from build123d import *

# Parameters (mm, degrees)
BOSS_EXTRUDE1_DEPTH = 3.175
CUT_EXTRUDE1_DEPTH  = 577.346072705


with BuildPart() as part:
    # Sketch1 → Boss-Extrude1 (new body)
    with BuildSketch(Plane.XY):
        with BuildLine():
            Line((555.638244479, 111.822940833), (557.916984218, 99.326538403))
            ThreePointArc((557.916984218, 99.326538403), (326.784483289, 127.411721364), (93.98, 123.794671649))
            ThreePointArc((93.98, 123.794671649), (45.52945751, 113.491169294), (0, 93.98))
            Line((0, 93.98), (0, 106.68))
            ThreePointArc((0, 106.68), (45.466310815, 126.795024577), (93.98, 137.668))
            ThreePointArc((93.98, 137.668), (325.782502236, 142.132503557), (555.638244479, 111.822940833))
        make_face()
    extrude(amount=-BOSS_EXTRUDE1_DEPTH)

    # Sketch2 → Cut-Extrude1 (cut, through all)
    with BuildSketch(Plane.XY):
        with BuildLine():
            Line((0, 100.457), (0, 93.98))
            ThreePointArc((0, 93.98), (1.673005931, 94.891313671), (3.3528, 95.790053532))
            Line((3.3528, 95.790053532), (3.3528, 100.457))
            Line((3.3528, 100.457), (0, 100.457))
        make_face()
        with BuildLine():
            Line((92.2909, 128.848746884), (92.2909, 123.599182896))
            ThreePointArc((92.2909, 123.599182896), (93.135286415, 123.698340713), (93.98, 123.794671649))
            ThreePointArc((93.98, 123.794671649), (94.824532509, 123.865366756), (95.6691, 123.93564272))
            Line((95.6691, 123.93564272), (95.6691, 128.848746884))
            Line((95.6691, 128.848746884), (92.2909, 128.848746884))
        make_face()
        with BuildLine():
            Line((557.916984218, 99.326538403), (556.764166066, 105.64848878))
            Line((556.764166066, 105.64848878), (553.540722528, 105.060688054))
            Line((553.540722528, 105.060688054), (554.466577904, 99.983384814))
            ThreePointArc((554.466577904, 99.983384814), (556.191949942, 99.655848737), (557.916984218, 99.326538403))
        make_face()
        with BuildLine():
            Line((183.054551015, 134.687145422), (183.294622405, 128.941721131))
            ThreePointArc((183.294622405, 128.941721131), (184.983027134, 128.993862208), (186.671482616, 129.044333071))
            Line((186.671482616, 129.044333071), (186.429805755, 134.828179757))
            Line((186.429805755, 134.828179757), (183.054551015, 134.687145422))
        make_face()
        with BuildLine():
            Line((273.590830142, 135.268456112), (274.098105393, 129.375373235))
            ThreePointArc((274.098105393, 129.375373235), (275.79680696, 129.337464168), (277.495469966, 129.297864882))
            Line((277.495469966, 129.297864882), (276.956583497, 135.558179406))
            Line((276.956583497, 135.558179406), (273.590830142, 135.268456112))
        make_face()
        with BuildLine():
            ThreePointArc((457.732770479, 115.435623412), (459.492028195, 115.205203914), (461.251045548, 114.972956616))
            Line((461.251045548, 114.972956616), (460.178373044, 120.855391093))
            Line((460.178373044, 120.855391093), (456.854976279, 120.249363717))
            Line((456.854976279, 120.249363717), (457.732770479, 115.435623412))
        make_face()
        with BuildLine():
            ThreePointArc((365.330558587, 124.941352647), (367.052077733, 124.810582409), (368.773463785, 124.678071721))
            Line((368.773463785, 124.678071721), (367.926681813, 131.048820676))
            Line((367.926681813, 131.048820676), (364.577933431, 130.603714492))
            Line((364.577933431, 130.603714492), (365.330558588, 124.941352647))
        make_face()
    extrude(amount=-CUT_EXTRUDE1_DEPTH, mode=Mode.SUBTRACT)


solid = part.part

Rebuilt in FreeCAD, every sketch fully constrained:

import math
import FreeCAD as App
import Part
import Sketcher
from FreeCAD import Vector
Q = App.Units.Quantity

doc = App.newDocument("Part")
params = doc.addObject("Spreadsheet::Sheet", "Params")
for row, (alias, value) in enumerate([
    ("sketch1_radius", "10 in"),
    ("sketch1_height", "0.5 in"),
    ("pad1_length", "0.125 in"),
    ("sketch2_radius", "9.9999999 in"),
    ("sketch2_width", "0.132 in"),
    ("sketch2_width2", "0.133 in"),
    ("sketch2_height", "0.255 in"),
    ("sketch2_length", "0.253 in"),
], start=1):
    params.set(f"A{row}", alias)
    params.set(f"B{row}", "=" + value)
    params.setAlias(f"B{row}", alias)

body = doc.addObject("PartDesign::Body", "Body")

sketch1 = body.newObject("Sketcher::SketchObject", "Sketch")
sketch1.AttachmentSupport = (doc.getObject("XY_Plane"), [""])
sketch1.MapMode = "FlatFace"
sketch1.addGeometry(Part.LineSegment(Vector(557.916984, 99.326538, 0), Vector(555.638244, 111.822941, 0)), False)
sketch1.addGeometry(Part.ArcOfCircle(Part.Circle(Vector(239.516481, -1398.797227, 0), Vector(0, 0, 1), 1543.342561), math.radians(78.180494), math.radians(95.411005)), False)
sketch1.addGeometry(Part.ArcOfCircle(Part.Circle(Vector(125.005388, -114.430047, 0), Vector(0, 0, 1), 254), math.radians(97.01604), math.radians(119.481809)), False)
sketch1.addGeometry(Part.LineSegment(Vector(0, 106.68, 0), Vector(0, 93.98, 0)), False)
sketch1.addGeometry(Part.ArcOfCircle(Part.Circle(Vector(122.337167, -128.617434, 0), Vector(0, 0, 1), 254), math.radians(96.410001), math.radians(118.792724)), False)
sketch1.addGeometry(Part.ArcOfCircle(Part.Circle(Vector(236.848566, -1577.851115, 0), Vector(0, 0, 1), 1707.632809), math.radians(79.162768), math.radians(94.799244)), False)
sketch1.addConstraint(Sketcher.Constraint("Coincident", 0, 2, 1, 1))
sketch1.addConstraint(Sketcher.Constraint("Coincident", 1, 2, 2, 1))
sketch1.addConstraint(Sketcher.Constraint("Coincident", 2, 2, 3, 1))
sketch1.addConstraint(Sketcher.Constraint("Coincident", 3, 2, 4, 2))
sketch1.addConstraint(Sketcher.Constraint("Coincident", 4, 1, 5, 2))
sketch1.addConstraint(Sketcher.Constraint("Coincident", 5, 1, 0, 1))
sketch1.addConstraint(Sketcher.Constraint("Vertical", 3))
sketch1.addConstraint(Sketcher.Constraint("Equal", 2, 4))
sketch1.addConstraint(Sketcher.Constraint("PointOnObject", 2, 2, -2))
sketch1.addConstraint(Sketcher.Constraint("Vertical", 1, 2, 4, 1))
sketch1.addConstraint(Sketcher.Constraint("Radius", 2, Q("10 in")))
sketch1.addConstraint(Sketcher.Constraint("DistanceY", 3, 2, 3, 1, Q("0.5 in")))
sketch1.addConstraint(Sketcher.Constraint("DistanceX", -1, 1, 1, 2, Q("3.7 in")))
sketch1.addConstraint(Sketcher.Constraint("DistanceY", -1, 1, 2, 2, Q("4.2 in")))
sketch1.addConstraint(Sketcher.Constraint("DistanceY", -1, 1, 1, 2, Q("5.42 in")))
sketch1.addConstraint(Sketcher.Constraint("Radius", 1, 1543.342561))
sketch1.addConstraint(Sketcher.Constraint("Radius", 5, 1707.632809))
sketch1.addConstraint(Sketcher.Constraint("DistanceX", 4, 3, 5, 3, 114.511399))
sketch1.addConstraint(Sketcher.Constraint("Distance", 0, 12.702469))
sketch1.addConstraint(Sketcher.Constraint("DistanceX", -1, 1, 1, 3, 239.516481))
sketch1.addConstraint(Sketcher.Constraint("DistanceY", -1, 1, 0, 2, 111.822941))
sketch1.addConstraint(Sketcher.Constraint("DistanceY", -1, 1, 4, 1, 123.794672))
sketch1.setExpression("Constraints[10]", "Params.sketch1_radius")
sketch1.setExpression("Constraints[11]", "Params.sketch1_height")
pad1 = body.newObject("PartDesign::Pad", "Pad")
pad1.Profile = sketch1
pad1.setExpression("Length", "Params.pad1_length")
pad1.Reversed = True

sketch2 = body.newObject("Sketcher::SketchObject", "Sketch001")
sketch2.AttachmentSupport = (doc.getObject("XY_Plane"), [""])
sketch2.MapMode = "FlatFace"
sketch2.addGeometry(Part.LineSegment(Vector(0, 100.457, 0), Vector(0, 93.98, 0)), False)
sketch2.addGeometry(Part.ArcOfCircle(Part.Circle(Vector(122.337165, -128.617431, 0), Vector(0, 0, 1), 253.999996), math.radians(117.933236), math.radians(118.792724)), False)
sketch2.addGeometry(Part.LineSegment(Vector(3.3528, 95.790054, 0), Vector(3.3528, 100.457, 0)), False)
sketch2.addGeometry(Part.LineSegment(Vector(3.3528, 100.457, 0), Vector(0, 100.457, 0)), False)
sketch2.addGeometry(Part.LineSegment(Vector(92.2909, 128.848747, 0), Vector(92.2909, 123.599183, 0)), False)
sketch2.addGeometry(Part.ArcOfCircle(Part.Circle(Vector(122.337168, -128.617448, 0), Vector(0, 0, 1), 254.000015), math.radians(96.410001), math.radians(96.793562)), False)
sketch2.addGeometry(Part.ArcOfCircle(Part.Circle(Vector(236.848985, -1577.856141, 0), Vector(0, 0, 1), 1707.637852), math.radians(94.742373), math.radians(94.799244)), False)
sketch2.addGeometry(Part.LineSegment(Vector(95.6691, 123.935643, 0), Vector(95.6691, 128.848747, 0)), False)
sketch2.addGeometry(Part.LineSegment(Vector(95.6691, 128.848747, 0), Vector(92.2909, 128.848747, 0)), False)
sketch2.addGeometry(Part.LineSegment(Vector(557.916984, 99.326538, 0), Vector(556.764166, 105.648489, 0)), False)
sketch2.addGeometry(Part.LineSegment(Vector(556.764166, 105.648489, 0), Vector(553.540723, 105.060688, 0)), False)
sketch2.addGeometry(Part.LineSegment(Vector(553.540723, 105.060688, 0), Vector(554.466578, 99.983385, 0)), False)
sketch2.addGeometry(Part.ArcOfCircle(Part.Circle(Vector(236.848771, -1577.850037, 0), Vector(0, 0, 1), 1707.631712), math.radians(79.162768), math.radians(79.280618)), False)
sketch2.addGeometry(Part.LineSegment(Vector(183.054551, 134.687145, 0), Vector(183.294622, 128.941721, 0)), False)
sketch2.addGeometry(Part.ArcOfCircle(Part.Circle(Vector(236.848575, -1577.851422, 0), Vector(0, 0, 1), 1707.633116), math.radians(91.683822), math.radians(91.797177)), False)
sketch2.addGeometry(Part.LineSegment(Vector(186.671483, 129.044333, 0), Vector(186.429806, 134.82818, 0)), False)
sketch2.addGeometry(Part.LineSegment(Vector(186.429806, 134.82818, 0), Vector(183.054551, 134.687145, 0)), False)
sketch2.addGeometry(Part.LineSegment(Vector(273.59083, 135.268456, 0), Vector(274.098105, 129.375373, 0)), False)
sketch2.addGeometry(Part.ArcOfCircle(Part.Circle(Vector(236.84857, -1577.850911, 0), Vector(0, 0, 1), 1707.632605), math.radians(88.636056), math.radians(88.750076)), False)
sketch2.addGeometry(Part.LineSegment(Vector(277.49547, 129.297865, 0), Vector(276.956583, 135.558179, 0)), False)
sketch2.addGeometry(Part.LineSegment(Vector(276.956583, 135.558179, 0), Vector(273.59083, 135.268456, 0)), False)
sketch2.addGeometry(Part.ArcOfCircle(Part.Circle(Vector(236.848759, -1577.849645, 0), Vector(0, 0, 1), 1707.631326), math.radians(82.448839), math.radians(82.567903)), False)
sketch2.addGeometry(Part.LineSegment(Vector(461.251046, 114.972957, 0), Vector(460.178373, 120.855391, 0)), False)
sketch2.addGeometry(Part.LineSegment(Vector(460.178373, 120.855391, 0), Vector(456.854976, 120.249364, 0)), False)
sketch2.addGeometry(Part.LineSegment(Vector(456.854976, 120.249364, 0), Vector(457.73277, 115.435623, 0)), False)
sketch2.addGeometry(Part.ArcOfCircle(Part.Circle(Vector(236.848471, -1577.852352, 0), Vector(0, 0, 1), 1707.63405), math.radians(85.569142), math.radians(85.684998)), False)
sketch2.addGeometry(Part.LineSegment(Vector(368.773464, 124.678072, 0), Vector(367.926682, 131.048821, 0)), False)
sketch2.addGeometry(Part.LineSegment(Vector(367.926682, 131.048821, 0), Vector(364.577933, 130.603714, 0)), False)
sketch2.addGeometry(Part.LineSegment(Vector(364.577933, 130.603714, 0), Vector(365.330559, 124.941353, 0)), False)
sketch2.addConstraint(Sketcher.Constraint("Coincident", 0, 2, 1, 2))
sketch2.addConstraint(Sketcher.Constraint("Coincident", 1, 1, 2, 1))
sketch2.addConstraint(Sketcher.Constraint("Coincident", 2, 2, 3, 1))
sketch2.addConstraint(Sketcher.Constraint("Coincident", 3, 2, 0, 1))
sketch2.addConstraint(Sketcher.Constraint("Coincident", 4, 2, 5, 2))
sketch2.addConstraint(Sketcher.Constraint("Coincident", 5, 1, 6, 2))
sketch2.addConstraint(Sketcher.Constraint("Coincident", 6, 1, 7, 1))
sketch2.addConstraint(Sketcher.Constraint("Coincident", 7, 2, 8, 1))
sketch2.addConstraint(Sketcher.Constraint("Coincident", 8, 2, 4, 1))
sketch2.addConstraint(Sketcher.Constraint("Coincident", 9, 2, 10, 1))
sketch2.addConstraint(Sketcher.Constraint("Coincident", 10, 2, 11, 1))
sketch2.addConstraint(Sketcher.Constraint("Coincident", 11, 2, 12, 2))
sketch2.addConstraint(Sketcher.Constraint("Coincident", 12, 1, 9, 1))
sketch2.addConstraint(Sketcher.Constraint("Coincident", 13, 2, 14, 2))
sketch2.addConstraint(Sketcher.Constraint("Coincident", 14, 1, 15, 1))
sketch2.addConstraint(Sketcher.Constraint("Coincident", 15, 2, 16, 1))
sketch2.addConstraint(Sketcher.Constraint("Coincident", 16, 2, 13, 1))
sketch2.addConstraint(Sketcher.Constraint("Coincident", 17, 2, 18, 2))
sketch2.addConstraint(Sketcher.Constraint("Coincident", 18, 1, 19, 1))
sketch2.addConstraint(Sketcher.Constraint("Coincident", 19, 2, 20, 1))
sketch2.addConstraint(Sketcher.Constraint("Coincident", 20, 2, 17, 1))
sketch2.addConstraint(Sketcher.Constraint("Coincident", 21, 1, 22, 1))
sketch2.addConstraint(Sketcher.Constraint("Coincident", 22, 2, 23, 1))
sketch2.addConstraint(Sketcher.Constraint("Coincident", 23, 2, 24, 1))
sketch2.addConstraint(Sketcher.Constraint("Coincident", 24, 2, 21, 2))
sketch2.addConstraint(Sketcher.Constraint("Coincident", 25, 1, 26, 1))
sketch2.addConstraint(Sketcher.Constraint("Coincident", 26, 2, 27, 1))
sketch2.addConstraint(Sketcher.Constraint("Coincident", 27, 2, 28, 1))
sketch2.addConstraint(Sketcher.Constraint("Coincident", 28, 2, 25, 2))
sketch2.addConstraint(Sketcher.Constraint("Vertical", 0))
sketch2.addConstraint(Sketcher.Constraint("Vertical", 2))
sketch2.addConstraint(Sketcher.Constraint("Horizontal", 3))
sketch2.addConstraint(Sketcher.Constraint("Vertical", 4))
sketch2.addConstraint(Sketcher.Constraint("Vertical", 7))
sketch2.addConstraint(Sketcher.Constraint("Horizontal", 8))
sketch2.addConstraint(Sketcher.Constraint("PointOnObject", 0, 2, -2))
sketch2.addConstraint(Sketcher.Constraint("Perpendicular", 9, 10))
sketch2.addConstraint(Sketcher.Constraint("Perpendicular", 10, 11))
sketch2.addConstraint(Sketcher.Constraint("Parallel", 13, 15))
sketch2.addConstraint(Sketcher.Constraint("Perpendicular", 15, 16))
sketch2.addConstraint(Sketcher.Constraint("Parallel", 17, 19))
sketch2.addConstraint(Sketcher.Constraint("Perpendicular", 19, 20))
sketch2.addConstraint(Sketcher.Constraint("Parallel", 11, 22))
sketch2.addConstraint(Sketcher.Constraint("Perpendicular", 22, 23))
sketch2.addConstraint(Sketcher.Constraint("Perpendicular", 23, 24))
sketch2.addConstraint(Sketcher.Constraint("Perpendicular", 26, 27))
sketch2.addConstraint(Sketcher.Constraint("Perpendicular", 27, 28))
sketch2.addConstraint(Sketcher.Constraint("Equal", 16, 20))
sketch2.addConstraint(Sketcher.Constraint("Equal", 20, 23))
sketch2.addConstraint(Sketcher.Constraint("Equal", 23, 27))
sketch2.addConstraint(Sketcher.Constraint("Radius", 1, Q("9.9999999 in")))
sketch2.addConstraint(Sketcher.Constraint("DistanceY", -1, 1, 0, 2, Q("3.7 in")))
sketch2.addConstraint(Sketcher.Constraint("DistanceX", -1, 1, 5, 1, Q("3.7 in")))
sketch2.addConstraint(Sketcher.Constraint("DistanceX", 3, 2, 3, 1, Q("0.132 in")))
sketch2.addConstraint(Sketcher.Constraint("DistanceX", 8, 2, 8, 1, Q("0.133 in")))
sketch2.addConstraint(Sketcher.Constraint("DistanceY", 0, 2, 0, 1, Q("0.255 in")))
sketch2.addConstraint(Sketcher.Constraint("Distance", 9, Q("0.253 in")))
sketch2.addConstraint(Sketcher.Constraint("Distance", 10, Q("0.1289999 in")))
sketch2.addConstraint(Sketcher.Constraint("Distance", 16, Q("0.133 in")))
sketch2.addConstraint(Sketcher.Constraint("Radius", 12, 1707.631712))
sketch2.addConstraint(Sketcher.Constraint("Radius", 25, 1707.63405))
sketch2.addConstraint(Sketcher.Constraint("DistanceX", -1, 1, 4, 2, Q("3.6335 in")))
sketch2.addConstraint(Sketcher.Constraint("Radius", 5, 254.000015))
sketch2.addConstraint(Sketcher.Constraint("Radius", 6, 1707.637852))
sketch2.addConstraint(Sketcher.Constraint("Radius", 14, 1707.633116))
sketch2.addConstraint(Sketcher.Constraint("Radius", 18, 1707.632605))
sketch2.addConstraint(Sketcher.Constraint("Radius", 21, 1707.631326))
sketch2.addConstraint(Sketcher.Constraint("DistanceX", 19, 2, 26, 2, Q("3.5814999 in")))
sketch2.addConstraint(Sketcher.Constraint("DistanceX", 18, 3, 12, 3, 0.000201))
sketch2.addConstraint(Sketcher.Constraint("DistanceX", 5, 3, 18, 3, 114.511402))
sketch2.addConstraint(Sketcher.Constraint("DistanceX", 25, 3, 12, 3, 0.0003))
sketch2.addConstraint(Sketcher.Constraint("DistanceY", 21, 3, 1, 1, 1673.639698))
sketch2.addConstraint(Sketcher.Constraint("DistanceY", 10, 2, 9, 2, 0.587801))
sketch2.addConstraint(Sketcher.Constraint("DistanceY", 7, 2, 16, 2, 5.838399))
sketch2.addConstraint(Sketcher.Constraint("DistanceX", 15, 2, 17, 2, 87.6683))
sketch2.addConstraint(Sketcher.Constraint("DistanceY", 15, 2, 19, 2, 0.73))
sketch2.addConstraint(Sketcher.Constraint("DistanceX", 23, 2, 11, 2, 97.611602))
sketch2.addConstraint(Sketcher.Constraint("Distance", 24, 4.893119))
sketch2.addConstraint(Sketcher.Constraint("Distance", 26, 6.426779))
sketch2.addConstraint(Sketcher.Constraint("Distance", 28, 5.712161))
sketch2.addConstraint(Sketcher.Constraint("DistanceY", 2, 1, 2, 2, 4.666946))
sketch2.addConstraint(Sketcher.Constraint("DistanceY", 4, 2, 4, 1, 5.249564))
sketch2.addConstraint(Sketcher.Constraint("DistanceY", 7, 1, 7, 2, 4.913104))
sketch2.addConstraint(Sketcher.Constraint("DistanceX", -1, 1, 5, 3, 122.337168))
sketch2.addConstraint(Sketcher.Constraint("DistanceY", 5, 3, -1, 1, 128.617448))
sketch2.addConstraint(Sketcher.Constraint("DistanceY", 18, 3, -1, 1, 1577.850911))
sketch2.addConstraint(Sketcher.Constraint("DistanceX", -1, 1, 21, 3, 236.848759))
sketch2.addConstraint(Sketcher.Constraint("DistanceY", -1, 1, 9, 2, 105.648489))
sketch2.addConstraint(Sketcher.Constraint("DistanceY", -1, 1, 13, 2, 128.941721))
sketch2.addConstraint(Sketcher.Constraint("DistanceY", -1, 1, 15, 2, 134.82818))
sketch2.addConstraint(Sketcher.Constraint("DistanceX", -1, 1, 16, 2, 183.054551))
sketch2.addConstraint(Sketcher.Constraint("DistanceX", -1, 1, 20, 2, 273.59083))
sketch2.addConstraint(Sketcher.Constraint("DistanceY", -1, 1, 22, 2, 120.855391))
sketch2.addConstraint(Sketcher.Constraint("DistanceY", -1, 1, 25, 1, 124.678072))
sketch2.addConstraint(Sketcher.Constraint("DistanceX", 14, 3, 6, 3, 0.00041))
sketch2.setExpression("Constraints[50]", "Params.sketch2_radius")
sketch2.setExpression("Constraints[53]", "Params.sketch2_width")
sketch2.setExpression("Constraints[54]", "Params.sketch2_width2")
sketch2.setExpression("Constraints[55]", "Params.sketch2_height")
sketch2.setExpression("Constraints[56]", "Params.sketch2_length")
pocket1 = body.newObject("PartDesign::Pocket", "Pocket")
pocket1.Profile = sketch2
pocket1.Type = "ThroughAll"

doc.recompute()
